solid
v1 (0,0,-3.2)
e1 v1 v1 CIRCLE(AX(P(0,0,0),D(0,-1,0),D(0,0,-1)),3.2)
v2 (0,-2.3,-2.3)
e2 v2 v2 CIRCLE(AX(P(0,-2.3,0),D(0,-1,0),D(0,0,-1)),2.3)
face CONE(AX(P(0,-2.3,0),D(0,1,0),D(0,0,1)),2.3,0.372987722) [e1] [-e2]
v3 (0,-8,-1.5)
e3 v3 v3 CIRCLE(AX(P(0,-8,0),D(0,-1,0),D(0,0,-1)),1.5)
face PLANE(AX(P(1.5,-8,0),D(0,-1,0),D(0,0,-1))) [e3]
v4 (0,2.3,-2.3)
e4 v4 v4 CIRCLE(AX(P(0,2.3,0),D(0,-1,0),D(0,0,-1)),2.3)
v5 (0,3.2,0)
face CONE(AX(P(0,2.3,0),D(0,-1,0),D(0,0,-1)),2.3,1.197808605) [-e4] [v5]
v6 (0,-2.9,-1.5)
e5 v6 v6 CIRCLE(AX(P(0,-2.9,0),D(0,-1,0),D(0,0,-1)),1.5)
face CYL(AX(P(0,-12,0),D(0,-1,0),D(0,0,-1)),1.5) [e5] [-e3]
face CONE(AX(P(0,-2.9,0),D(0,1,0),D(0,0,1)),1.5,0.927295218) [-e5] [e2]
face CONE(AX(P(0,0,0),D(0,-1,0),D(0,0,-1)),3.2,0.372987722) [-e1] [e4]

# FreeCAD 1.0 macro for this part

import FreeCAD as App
import Part
import Sketcher
from FreeCAD import Vector


def add_polygon(sketch, points):
    """Adds a closed chain of lines whose ends are joined by coincident constraints."""
    first, n = sketch.GeometryCount, len(points)
    for a, b in zip(points, points[1:] + points[:1]):
        sketch.addGeometry(Part.LineSegment(App.Vector(*a, 0), App.Vector(*b, 0)), False)
    for i in range(n):
        sketch.addConstraint(Sketcher.Constraint("Coincident", first + i, 2, first + (i + 1) % n, 1))

doc = App.newDocument("Part")
body = doc.addObject("PartDesign::Body", "Body")

sketch1 = body.newObject("Sketcher::SketchObject", "Sketch")
sketch1.AttachmentSupport = (doc.getObject("XY_Plane"), [""])
sketch1.MapMode = "FlatFace"
add_polygon(sketch1, [(2.3, 2.3), (0, 3.2), (0, -8), (1.5, -8), (1.5, -2.9), (2.3, -2.3), (3.2, 0)])
sketch1.addConstraint(Sketcher.Constraint("Vertical", 1))
sketch1.addConstraint(Sketcher.Constraint("Horizontal", 2))
sketch1.addConstraint(Sketcher.Constraint("Vertical", 3))
sketch1.addConstraint(Sketcher.Constraint("Symmetric", 4, 2, 6, 2, -1))
sketch1.addConstraint(Sketcher.Constraint("PointOnObject", 0, 2, -2))
sketch1.addConstraint(Sketcher.Constraint("PointOnObject", 5, 2, -1))
sketch1.addConstraint(Sketcher.Constraint("Perpendicular", 0, 5))
sketch1.addConstraint(Sketcher.Constraint("Equal", 0, 5))
sketch1.addConstraint(Sketcher.Constraint("Distance", 4, 1.0))
sketch1.addConstraint(Sketcher.Constraint("DistanceX", 2, 1, 2, 2, 1.5))
sketch1.addConstraint(Sketcher.Constraint("DistanceY", 1, 2, 1, 1, 11.2))
sketch1.addConstraint(Sketcher.Constraint("DistanceY", 3, 1, 3, 2, 5.1))
sketch1.addConstraint(Sketcher.Constraint("DistanceY", 1, 2, -1, 1, 8.0))
revolution = body.newObject("PartDesign::Revolution", "Revolution")
revolution.Profile = sketch1
revolution.ReferenceAxis = (sketch1, ["V_Axis"])
revolution.Angle = 360

doc.recompute()
